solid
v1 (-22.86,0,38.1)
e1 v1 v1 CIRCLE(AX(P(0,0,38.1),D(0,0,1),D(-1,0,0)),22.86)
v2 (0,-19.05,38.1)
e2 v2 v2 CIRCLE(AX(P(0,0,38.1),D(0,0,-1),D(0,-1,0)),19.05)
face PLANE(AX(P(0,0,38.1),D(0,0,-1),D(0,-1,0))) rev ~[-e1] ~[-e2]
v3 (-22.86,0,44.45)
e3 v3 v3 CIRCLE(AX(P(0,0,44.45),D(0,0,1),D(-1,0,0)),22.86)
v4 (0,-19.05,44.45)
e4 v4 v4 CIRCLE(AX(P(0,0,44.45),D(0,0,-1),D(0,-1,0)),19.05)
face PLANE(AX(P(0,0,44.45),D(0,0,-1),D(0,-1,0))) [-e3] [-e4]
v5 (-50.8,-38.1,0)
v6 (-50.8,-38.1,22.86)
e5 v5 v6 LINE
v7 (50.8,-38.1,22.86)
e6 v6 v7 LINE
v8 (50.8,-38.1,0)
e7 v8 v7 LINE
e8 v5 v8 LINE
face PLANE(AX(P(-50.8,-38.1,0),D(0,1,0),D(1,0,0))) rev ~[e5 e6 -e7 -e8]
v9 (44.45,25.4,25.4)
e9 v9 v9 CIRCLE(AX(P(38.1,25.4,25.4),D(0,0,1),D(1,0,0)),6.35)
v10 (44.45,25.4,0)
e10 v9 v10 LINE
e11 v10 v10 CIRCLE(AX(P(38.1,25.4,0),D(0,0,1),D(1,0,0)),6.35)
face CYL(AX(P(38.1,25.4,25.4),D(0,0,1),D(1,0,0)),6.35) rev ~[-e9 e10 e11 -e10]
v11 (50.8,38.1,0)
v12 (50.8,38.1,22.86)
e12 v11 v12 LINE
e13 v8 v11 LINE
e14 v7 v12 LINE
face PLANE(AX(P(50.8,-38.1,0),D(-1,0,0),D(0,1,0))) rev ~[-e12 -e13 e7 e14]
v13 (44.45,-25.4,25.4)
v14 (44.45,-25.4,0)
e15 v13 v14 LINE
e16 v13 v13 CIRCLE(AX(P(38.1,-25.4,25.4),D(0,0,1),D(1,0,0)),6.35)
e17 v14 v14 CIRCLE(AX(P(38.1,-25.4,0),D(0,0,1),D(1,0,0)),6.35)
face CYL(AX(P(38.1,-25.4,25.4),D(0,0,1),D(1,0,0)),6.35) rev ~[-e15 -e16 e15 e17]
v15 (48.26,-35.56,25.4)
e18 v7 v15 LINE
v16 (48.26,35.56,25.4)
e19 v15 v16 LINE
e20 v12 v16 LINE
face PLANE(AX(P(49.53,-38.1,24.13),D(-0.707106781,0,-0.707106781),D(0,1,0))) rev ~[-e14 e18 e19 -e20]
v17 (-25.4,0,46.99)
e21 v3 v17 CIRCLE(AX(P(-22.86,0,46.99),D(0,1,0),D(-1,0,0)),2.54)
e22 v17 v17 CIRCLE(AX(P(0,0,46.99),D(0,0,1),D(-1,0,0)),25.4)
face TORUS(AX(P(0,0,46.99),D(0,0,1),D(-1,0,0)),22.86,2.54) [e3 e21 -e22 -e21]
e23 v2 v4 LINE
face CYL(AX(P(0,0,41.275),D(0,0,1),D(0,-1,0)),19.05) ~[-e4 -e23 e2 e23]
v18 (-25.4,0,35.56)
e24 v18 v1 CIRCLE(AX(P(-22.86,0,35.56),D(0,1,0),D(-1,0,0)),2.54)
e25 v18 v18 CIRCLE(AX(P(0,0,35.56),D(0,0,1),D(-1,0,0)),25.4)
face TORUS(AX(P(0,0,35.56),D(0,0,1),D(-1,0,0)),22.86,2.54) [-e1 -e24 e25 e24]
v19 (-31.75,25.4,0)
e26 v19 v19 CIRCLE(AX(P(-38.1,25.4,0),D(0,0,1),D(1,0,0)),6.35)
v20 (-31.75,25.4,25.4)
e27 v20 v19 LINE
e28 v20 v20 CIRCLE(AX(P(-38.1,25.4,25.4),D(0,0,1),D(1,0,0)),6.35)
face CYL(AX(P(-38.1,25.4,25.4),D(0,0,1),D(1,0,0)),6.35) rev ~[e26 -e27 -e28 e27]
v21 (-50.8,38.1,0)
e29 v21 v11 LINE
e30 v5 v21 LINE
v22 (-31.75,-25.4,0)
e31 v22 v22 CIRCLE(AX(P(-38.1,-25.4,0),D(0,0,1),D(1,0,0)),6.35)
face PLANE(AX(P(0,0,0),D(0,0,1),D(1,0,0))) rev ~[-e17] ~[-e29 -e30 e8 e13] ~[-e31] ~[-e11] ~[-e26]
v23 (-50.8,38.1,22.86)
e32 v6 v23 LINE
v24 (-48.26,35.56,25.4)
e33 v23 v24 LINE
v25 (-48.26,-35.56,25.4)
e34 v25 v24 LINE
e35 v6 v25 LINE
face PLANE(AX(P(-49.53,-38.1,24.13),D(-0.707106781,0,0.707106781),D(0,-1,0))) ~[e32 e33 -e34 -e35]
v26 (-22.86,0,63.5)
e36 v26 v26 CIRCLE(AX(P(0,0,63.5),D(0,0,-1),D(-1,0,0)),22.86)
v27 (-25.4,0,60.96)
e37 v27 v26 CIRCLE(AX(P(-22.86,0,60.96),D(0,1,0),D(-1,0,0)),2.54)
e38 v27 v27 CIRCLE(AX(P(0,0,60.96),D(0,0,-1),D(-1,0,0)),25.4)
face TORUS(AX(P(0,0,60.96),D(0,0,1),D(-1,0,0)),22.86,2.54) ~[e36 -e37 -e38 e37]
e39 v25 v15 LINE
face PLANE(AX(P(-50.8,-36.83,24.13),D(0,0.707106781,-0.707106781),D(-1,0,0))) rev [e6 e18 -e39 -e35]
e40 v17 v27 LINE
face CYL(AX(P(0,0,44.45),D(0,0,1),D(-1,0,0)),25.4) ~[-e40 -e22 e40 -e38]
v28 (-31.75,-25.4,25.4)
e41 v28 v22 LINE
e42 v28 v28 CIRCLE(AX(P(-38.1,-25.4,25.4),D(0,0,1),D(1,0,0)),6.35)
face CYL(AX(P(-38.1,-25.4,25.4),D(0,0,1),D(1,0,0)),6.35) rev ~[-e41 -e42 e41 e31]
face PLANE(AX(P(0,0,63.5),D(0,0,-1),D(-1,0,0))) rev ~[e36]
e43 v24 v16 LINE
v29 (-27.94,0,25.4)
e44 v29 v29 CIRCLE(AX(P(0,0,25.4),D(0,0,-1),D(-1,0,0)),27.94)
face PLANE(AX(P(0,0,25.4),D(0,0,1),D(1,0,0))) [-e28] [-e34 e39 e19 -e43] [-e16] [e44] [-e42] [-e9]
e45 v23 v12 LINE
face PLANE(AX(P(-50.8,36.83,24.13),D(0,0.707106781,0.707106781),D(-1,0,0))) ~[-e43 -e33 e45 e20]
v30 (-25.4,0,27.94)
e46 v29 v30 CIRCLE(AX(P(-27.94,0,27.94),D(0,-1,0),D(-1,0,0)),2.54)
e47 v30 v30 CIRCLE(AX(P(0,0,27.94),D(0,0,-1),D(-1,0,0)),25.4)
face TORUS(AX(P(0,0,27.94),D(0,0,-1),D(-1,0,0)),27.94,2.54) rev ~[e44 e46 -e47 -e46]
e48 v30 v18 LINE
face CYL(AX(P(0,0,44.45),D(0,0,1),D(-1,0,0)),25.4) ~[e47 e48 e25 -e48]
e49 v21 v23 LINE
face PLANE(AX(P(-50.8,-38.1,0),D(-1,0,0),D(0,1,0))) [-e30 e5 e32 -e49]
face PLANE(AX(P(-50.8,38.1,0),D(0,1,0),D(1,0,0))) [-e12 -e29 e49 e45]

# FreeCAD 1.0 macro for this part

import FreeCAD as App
import Part
import Sketcher

V = App.Vector
Q = App.Units.Quantity


def edges_at(feature, points):
    """Names of the edges that pass closest to the given points."""
    edges = feature.Shape.Edges
    near = lambda p: min(range(len(edges)), key=lambda i: edges[i].distToShape(Part.Vertex(*p))[0])
    return sorted({f"Edge{near(p) + 1}" for p in points})


def add_polygon(sketch, points):
    """Adds a closed chain of lines whose ends are joined by coincident constraints."""
    first, n = sketch.GeometryCount, len(points)
    for a, b in zip(points, points[1:] + points[:1]):
        sketch.addGeometry(Part.LineSegment(App.Vector(*a, 0), App.Vector(*b, 0)), False)
    for i in range(n):
        sketch.addConstraint(Sketcher.Constraint("Coincident", first + i, 2, first + (i + 1) % n, 1))

doc = App.newDocument("Part")
body = doc.addObject("PartDesign::Body", "Body")

# Sketch on XY plane
sketch1 = body.newObject("Sketcher::SketchObject", "Sketch")
sketch1.AttachmentSupport = (doc.getObject("XY_Plane"), [""])
sketch1.MapMode = "FlatFace"
add_polygon(sketch1, [(-51, 38), (-51, -38), (51, -38), (51, 38)])  # lines 0-3
sketch1.addConstraint([
    Sketcher.Constraint("Vertical", 0),
    Sketcher.Constraint("Horizontal", 1),
    Sketcher.Constraint("Vertical", 2),
    Sketcher.Constraint("Horizontal", 3),
    Sketcher.Constraint("Symmetric", 0, 2, 2, 2, -1, 1),
    Sketcher.Constraint("DistanceX", 1, 1, 1, 2, Q("4 in")),
    Sketcher.Constraint("DistanceY", 0, 2, 0, 1, Q("3 in")),
])
pad1 = body.newObject("PartDesign::Pad", "Pad")
pad1.Profile = sketch1
pad1.Length = Q("1 in")

# Sketch on XY plane
sketch2 = body.newObject("Sketcher::SketchObject", "Sketch001")
sketch2.AttachmentSupport = (doc.getObject("XY_Plane"), [""])
sketch2.MapMode = "FlatFace"
sketch2.AttachmentOffset = App.Placement(V(0, 0, 1 * 25.4), App.Rotation())
sketch2.addGeometry([
    Part.Circle(V(-38, 25, 0), V(0, 0, 1), 6),
    Part.Circle(V(38, 25, 0), V(0, 0, 1), 6),
    Part.Circle(V(38, -25, 0), V(0, 0, 1), 6),
    Part.Circle(V(-38, -25, 0), V(0, 0, 1), 6),
], False)
sketch2.addConstraint([
    Sketcher.Constraint("Equal", 0, 1),
    Sketcher.Constraint("Equal", 1, 2),
    Sketcher.Constraint("Equal", 2, 3),
    Sketcher.Constraint("Symmetric", 0, 3, 2, 3, -1, 1),
    Sketcher.Constraint("Symmetric", 1, 3, 3, 3, -1, 1),
    Sketcher.Constraint("Symmetric", 0, 3, 1, 3, -2),
    Sketcher.Constraint("Diameter", 0, Q("0.5 in")),
    Sketcher.Constraint("DistanceY", -1, 1, 0, 3, Q("1 in")),
    Sketcher.Constraint("DistanceX", 0, 3, 1, 3, Q("3 in")),
])
pocket1 = body.newObject("PartDesign::Pocket", "Pocket")
pocket1.Profile = sketch2
pocket1.Length = Q("1 in")

# Sketch on XZ plane
sketch3 = body.newObject("Sketcher::SketchObject", "Sketch002")
sketch3.AttachmentSupport = (doc.getObject("XZ_Plane"), [""])
sketch3.MapMode = "FlatFace"
add_polygon(sketch3, [(-25, 64), (-25, 25), (0, 25), (0, 64)])  # lines 0-3
sketch3.addConstraint([
    Sketcher.Constraint("Vertical", 0),
    Sketcher.Constraint("Horizontal", 1),
    Sketcher.Constraint("Vertical", 2),
    Sketcher.Constraint("Horizontal", 3),
    Sketcher.Constraint("PointOnObject", 1, 2, -2),
    Sketcher.Constraint("DistanceX", 1, 1, 1, 2, Q("1 in")),
    Sketcher.Constraint("DistanceY", 0, 2, 0, 1, Q("1.5 in")),
    Sketcher.Constraint("DistanceY", -1, 1, 0, 2, Q("1 in")),
])
revolution = body.newObject("PartDesign::Revolution", "Revolution")
revolution.Profile = sketch3
revolution.ReferenceAxis = (sketch3, ["V_Axis"])
revolution.Angle = 360

# Sketch on YZ plane
sketch4 = body.newObject("Sketcher::SketchObject", "Sketch003")
sketch4.AttachmentSupport = (doc.getObject("YZ_Plane"), [""])
sketch4.MapMode = "FlatFace"
add_polygon(sketch4, [(-44, 44), (-44, 38), (-19, 38), (-19, 44)])  # lines 0-3
sketch4.addConstraint([
    Sketcher.Constraint("Vertical", 0),
    Sketcher.Constraint("Horizontal", 1),
    Sketcher.Constraint("Vertical", 2),
    Sketcher.Constraint("Horizontal", 3),
    Sketcher.Constraint("DistanceX", 1, 1, 1, 2, Q("1 in")),
    Sketcher.Constraint("DistanceY", 0, 2, 0, 1, Q("0.25 in")),
    Sketcher.Constraint("DistanceY", -1, 1, 0, 2, Q("1.5 in")),
    Sketcher.Constraint("DistanceX", 0, 2, -1, 1, Q("1.75 in")),
])
groove = body.newObject("PartDesign::Groove", "Groove")
groove.Profile = sketch4
groove.ReferenceAxis = (sketch4, ["V_Axis"])
groove.Angle = 360
doc.recompute()

chamfer = body.newObject("PartDesign::Chamfer", "Chamfer")
chamfer.Base = (groove, edges_at(groove, [
    (0, 38.1, 25.4),
    (-50.8, 0, 25.4),
    (0, -38.1, 25.4),
    (50.8, 0, 25.4),
]))
chamfer.Size = Q("0.1 in")
doc.recompute()

fillet = body.newObject("PartDesign::Fillet", "Fillet")
fillet.Base = (chamfer, edges_at(chamfer, [
    (25.4, 0, 25.4),
    (25.4, 0, 38.1),
    (25.4, 0, 44.45),
    (25.4, 0, 63.5),
]))
fillet.Radius = Q("0.1 in")

doc.recompute()
